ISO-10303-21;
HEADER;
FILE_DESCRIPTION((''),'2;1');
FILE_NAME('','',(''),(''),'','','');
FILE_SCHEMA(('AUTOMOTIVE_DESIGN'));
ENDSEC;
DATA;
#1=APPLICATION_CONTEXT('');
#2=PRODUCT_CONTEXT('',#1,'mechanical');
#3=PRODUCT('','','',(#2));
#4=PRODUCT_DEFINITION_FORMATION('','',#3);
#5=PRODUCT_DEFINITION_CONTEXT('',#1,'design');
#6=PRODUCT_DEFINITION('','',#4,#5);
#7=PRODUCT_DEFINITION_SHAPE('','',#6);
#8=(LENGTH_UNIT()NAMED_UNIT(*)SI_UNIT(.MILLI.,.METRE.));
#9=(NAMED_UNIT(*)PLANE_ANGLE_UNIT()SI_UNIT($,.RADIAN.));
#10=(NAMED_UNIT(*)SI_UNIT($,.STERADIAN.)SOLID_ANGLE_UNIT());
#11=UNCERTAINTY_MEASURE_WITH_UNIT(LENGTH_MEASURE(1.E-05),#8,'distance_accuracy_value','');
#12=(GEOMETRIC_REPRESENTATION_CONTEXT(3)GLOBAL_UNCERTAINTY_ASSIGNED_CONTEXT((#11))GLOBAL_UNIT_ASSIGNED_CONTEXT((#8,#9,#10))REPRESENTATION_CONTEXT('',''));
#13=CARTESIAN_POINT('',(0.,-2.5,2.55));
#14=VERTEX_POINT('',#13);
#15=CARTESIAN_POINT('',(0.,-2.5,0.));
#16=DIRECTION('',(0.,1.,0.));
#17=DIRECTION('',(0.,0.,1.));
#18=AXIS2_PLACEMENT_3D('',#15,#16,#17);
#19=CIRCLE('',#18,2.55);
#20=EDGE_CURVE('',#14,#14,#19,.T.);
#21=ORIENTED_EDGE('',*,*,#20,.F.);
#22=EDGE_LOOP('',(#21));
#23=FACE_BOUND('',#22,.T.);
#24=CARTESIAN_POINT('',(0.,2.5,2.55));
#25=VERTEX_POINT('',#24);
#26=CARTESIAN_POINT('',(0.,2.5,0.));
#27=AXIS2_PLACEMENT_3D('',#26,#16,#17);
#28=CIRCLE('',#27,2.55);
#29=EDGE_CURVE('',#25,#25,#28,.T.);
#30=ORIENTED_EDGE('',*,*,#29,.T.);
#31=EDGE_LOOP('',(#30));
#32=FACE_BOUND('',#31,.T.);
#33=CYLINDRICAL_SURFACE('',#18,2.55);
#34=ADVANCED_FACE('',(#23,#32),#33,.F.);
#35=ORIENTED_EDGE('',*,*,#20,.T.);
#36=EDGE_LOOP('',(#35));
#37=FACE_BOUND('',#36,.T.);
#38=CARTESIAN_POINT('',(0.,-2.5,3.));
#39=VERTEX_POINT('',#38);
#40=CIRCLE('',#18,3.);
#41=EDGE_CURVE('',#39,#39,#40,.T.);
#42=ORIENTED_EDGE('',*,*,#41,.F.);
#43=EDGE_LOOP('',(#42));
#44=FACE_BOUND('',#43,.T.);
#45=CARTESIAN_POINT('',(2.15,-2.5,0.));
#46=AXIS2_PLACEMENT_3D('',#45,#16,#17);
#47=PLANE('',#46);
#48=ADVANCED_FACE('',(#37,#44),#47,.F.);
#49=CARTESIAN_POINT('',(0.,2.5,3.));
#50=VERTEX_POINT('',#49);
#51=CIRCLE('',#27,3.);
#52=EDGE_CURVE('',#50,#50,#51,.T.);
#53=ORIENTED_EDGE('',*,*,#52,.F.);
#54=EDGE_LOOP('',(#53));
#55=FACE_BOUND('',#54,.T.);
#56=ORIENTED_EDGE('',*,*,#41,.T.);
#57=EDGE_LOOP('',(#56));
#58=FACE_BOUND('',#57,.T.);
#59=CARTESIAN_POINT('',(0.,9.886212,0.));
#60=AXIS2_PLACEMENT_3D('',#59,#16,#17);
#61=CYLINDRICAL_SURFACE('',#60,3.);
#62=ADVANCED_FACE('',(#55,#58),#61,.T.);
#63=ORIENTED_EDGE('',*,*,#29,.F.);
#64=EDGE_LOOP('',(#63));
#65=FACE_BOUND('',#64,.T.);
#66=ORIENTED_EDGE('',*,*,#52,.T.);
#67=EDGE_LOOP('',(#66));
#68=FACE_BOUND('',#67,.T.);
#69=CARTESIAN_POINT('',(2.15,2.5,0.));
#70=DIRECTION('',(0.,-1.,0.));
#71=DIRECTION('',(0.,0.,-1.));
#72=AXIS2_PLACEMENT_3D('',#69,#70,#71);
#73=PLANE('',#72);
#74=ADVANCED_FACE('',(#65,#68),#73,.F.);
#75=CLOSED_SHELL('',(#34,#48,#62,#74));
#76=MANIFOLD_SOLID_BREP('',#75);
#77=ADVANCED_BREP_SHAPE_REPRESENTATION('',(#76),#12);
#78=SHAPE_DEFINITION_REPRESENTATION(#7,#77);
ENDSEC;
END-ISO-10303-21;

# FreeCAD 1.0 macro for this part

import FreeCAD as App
import Part
import Sketcher


def add_polygon(sketch, points):
    """Adds a closed chain of lines whose ends are joined by coincident constraints."""
    first, n = sketch.GeometryCount, len(points)
    for a, b in zip(points, points[1:] + points[:1]):
        sketch.addGeometry(Part.LineSegment(App.Vector(*a, 0), App.Vector(*b, 0)), False)
    for i in range(n):
        sketch.addConstraint(Sketcher.Constraint("Coincident", first + i, 2, first + (i + 1) % n, 1))

doc = App.newDocument("Part")
params = doc.addObject("Spreadsheet::Sheet", "Params")
for row, (alias, value) in enumerate([
    ("sketch1_height", "5 mm"),
    ("sketch1_width", "0.85 mm"),
    ("revolution_angle", "360 deg"),
    ("sketch2_diameter", "5.1 mm"),
], start=1):
    params.set(f"A{row}", alias)
    params.set(f"B{row}", "=" + value)
    params.setAlias(f"B{row}", alias)

body = doc.addObject("PartDesign::Body", "Body")

# Sketch on XY plane
sketch1 = body.newObject("Sketcher::SketchObject", "Sketch")
sketch1.AttachmentSupport = (doc.getObject("XY_Plane"), [""])
sketch1.MapMode = "FlatFace"
add_polygon(sketch1, [(2.15, 2.5), (2.15, -2.5), (3, -2.5), (3, 2.5)])  # lines 0-3
sketch1.addConstraint(Sketcher.Constraint("Vertical", 0))
sketch1.addConstraint(Sketcher.Constraint("Horizontal", 1))
sketch1.addConstraint(Sketcher.Constraint("Vertical", 2))
sketch1.addConstraint(Sketcher.Constraint("Horizontal", 3))
sketch1.addConstraint(Sketcher.Constraint("DistanceY", 0, 2, 0, 1, 5.0))
sketch1.addConstraint(Sketcher.Constraint("DistanceX", -1, 1, 1, 2, 3.0))
sketch1.addConstraint(Sketcher.Constraint("DistanceX", 1, 1, 1, 2, 0.85))
sketch1.addConstraint(Sketcher.Constraint("DistanceY", 0, 2, -1, 1, 2.5))
sketch1.setExpression("Constraints[8]", "Params.sketch1_height")
sketch1.setExpression("Constraints[10]", "Params.sketch1_width")
revolution = body.newObject("PartDesign::Revolution", "Revolution")
revolution.Profile = sketch1
revolution.ReferenceAxis = (sketch1, ["V_Axis"])
revolution.setExpression("Angle", "Params.revolution_angle")

# Sketch on XZ plane
sketch2 = body.newObject("Sketcher::SketchObject", "Sketch001")
sketch2.AttachmentSupport = (doc.getObject("XZ_Plane"), [""])
sketch2.MapMode = "FlatFace"
sketch2.AttachmentOffset = App.Placement(App.Vector(0, 0, -2.5), App.Rotation())
sketch2.addGeometry(Part.Circle(App.Vector(0, 0, 0), App.Vector(0, 0, 1), 2.55), False)
sketch2.addConstraint(Sketcher.Constraint("Coincident", 0, 3, -1, 1))
sketch2.addConstraint(Sketcher.Constraint("Diameter", 0, 5.1))
sketch2.setExpression("Constraints[1]", "Params.sketch2_diameter")
pocket1 = body.newObject("PartDesign::Pocket", "Pocket")
pocket1.Profile = sketch2
pocket1.Type = "ThroughAll"
pocket1.Reversed = True

doc.recompute()
